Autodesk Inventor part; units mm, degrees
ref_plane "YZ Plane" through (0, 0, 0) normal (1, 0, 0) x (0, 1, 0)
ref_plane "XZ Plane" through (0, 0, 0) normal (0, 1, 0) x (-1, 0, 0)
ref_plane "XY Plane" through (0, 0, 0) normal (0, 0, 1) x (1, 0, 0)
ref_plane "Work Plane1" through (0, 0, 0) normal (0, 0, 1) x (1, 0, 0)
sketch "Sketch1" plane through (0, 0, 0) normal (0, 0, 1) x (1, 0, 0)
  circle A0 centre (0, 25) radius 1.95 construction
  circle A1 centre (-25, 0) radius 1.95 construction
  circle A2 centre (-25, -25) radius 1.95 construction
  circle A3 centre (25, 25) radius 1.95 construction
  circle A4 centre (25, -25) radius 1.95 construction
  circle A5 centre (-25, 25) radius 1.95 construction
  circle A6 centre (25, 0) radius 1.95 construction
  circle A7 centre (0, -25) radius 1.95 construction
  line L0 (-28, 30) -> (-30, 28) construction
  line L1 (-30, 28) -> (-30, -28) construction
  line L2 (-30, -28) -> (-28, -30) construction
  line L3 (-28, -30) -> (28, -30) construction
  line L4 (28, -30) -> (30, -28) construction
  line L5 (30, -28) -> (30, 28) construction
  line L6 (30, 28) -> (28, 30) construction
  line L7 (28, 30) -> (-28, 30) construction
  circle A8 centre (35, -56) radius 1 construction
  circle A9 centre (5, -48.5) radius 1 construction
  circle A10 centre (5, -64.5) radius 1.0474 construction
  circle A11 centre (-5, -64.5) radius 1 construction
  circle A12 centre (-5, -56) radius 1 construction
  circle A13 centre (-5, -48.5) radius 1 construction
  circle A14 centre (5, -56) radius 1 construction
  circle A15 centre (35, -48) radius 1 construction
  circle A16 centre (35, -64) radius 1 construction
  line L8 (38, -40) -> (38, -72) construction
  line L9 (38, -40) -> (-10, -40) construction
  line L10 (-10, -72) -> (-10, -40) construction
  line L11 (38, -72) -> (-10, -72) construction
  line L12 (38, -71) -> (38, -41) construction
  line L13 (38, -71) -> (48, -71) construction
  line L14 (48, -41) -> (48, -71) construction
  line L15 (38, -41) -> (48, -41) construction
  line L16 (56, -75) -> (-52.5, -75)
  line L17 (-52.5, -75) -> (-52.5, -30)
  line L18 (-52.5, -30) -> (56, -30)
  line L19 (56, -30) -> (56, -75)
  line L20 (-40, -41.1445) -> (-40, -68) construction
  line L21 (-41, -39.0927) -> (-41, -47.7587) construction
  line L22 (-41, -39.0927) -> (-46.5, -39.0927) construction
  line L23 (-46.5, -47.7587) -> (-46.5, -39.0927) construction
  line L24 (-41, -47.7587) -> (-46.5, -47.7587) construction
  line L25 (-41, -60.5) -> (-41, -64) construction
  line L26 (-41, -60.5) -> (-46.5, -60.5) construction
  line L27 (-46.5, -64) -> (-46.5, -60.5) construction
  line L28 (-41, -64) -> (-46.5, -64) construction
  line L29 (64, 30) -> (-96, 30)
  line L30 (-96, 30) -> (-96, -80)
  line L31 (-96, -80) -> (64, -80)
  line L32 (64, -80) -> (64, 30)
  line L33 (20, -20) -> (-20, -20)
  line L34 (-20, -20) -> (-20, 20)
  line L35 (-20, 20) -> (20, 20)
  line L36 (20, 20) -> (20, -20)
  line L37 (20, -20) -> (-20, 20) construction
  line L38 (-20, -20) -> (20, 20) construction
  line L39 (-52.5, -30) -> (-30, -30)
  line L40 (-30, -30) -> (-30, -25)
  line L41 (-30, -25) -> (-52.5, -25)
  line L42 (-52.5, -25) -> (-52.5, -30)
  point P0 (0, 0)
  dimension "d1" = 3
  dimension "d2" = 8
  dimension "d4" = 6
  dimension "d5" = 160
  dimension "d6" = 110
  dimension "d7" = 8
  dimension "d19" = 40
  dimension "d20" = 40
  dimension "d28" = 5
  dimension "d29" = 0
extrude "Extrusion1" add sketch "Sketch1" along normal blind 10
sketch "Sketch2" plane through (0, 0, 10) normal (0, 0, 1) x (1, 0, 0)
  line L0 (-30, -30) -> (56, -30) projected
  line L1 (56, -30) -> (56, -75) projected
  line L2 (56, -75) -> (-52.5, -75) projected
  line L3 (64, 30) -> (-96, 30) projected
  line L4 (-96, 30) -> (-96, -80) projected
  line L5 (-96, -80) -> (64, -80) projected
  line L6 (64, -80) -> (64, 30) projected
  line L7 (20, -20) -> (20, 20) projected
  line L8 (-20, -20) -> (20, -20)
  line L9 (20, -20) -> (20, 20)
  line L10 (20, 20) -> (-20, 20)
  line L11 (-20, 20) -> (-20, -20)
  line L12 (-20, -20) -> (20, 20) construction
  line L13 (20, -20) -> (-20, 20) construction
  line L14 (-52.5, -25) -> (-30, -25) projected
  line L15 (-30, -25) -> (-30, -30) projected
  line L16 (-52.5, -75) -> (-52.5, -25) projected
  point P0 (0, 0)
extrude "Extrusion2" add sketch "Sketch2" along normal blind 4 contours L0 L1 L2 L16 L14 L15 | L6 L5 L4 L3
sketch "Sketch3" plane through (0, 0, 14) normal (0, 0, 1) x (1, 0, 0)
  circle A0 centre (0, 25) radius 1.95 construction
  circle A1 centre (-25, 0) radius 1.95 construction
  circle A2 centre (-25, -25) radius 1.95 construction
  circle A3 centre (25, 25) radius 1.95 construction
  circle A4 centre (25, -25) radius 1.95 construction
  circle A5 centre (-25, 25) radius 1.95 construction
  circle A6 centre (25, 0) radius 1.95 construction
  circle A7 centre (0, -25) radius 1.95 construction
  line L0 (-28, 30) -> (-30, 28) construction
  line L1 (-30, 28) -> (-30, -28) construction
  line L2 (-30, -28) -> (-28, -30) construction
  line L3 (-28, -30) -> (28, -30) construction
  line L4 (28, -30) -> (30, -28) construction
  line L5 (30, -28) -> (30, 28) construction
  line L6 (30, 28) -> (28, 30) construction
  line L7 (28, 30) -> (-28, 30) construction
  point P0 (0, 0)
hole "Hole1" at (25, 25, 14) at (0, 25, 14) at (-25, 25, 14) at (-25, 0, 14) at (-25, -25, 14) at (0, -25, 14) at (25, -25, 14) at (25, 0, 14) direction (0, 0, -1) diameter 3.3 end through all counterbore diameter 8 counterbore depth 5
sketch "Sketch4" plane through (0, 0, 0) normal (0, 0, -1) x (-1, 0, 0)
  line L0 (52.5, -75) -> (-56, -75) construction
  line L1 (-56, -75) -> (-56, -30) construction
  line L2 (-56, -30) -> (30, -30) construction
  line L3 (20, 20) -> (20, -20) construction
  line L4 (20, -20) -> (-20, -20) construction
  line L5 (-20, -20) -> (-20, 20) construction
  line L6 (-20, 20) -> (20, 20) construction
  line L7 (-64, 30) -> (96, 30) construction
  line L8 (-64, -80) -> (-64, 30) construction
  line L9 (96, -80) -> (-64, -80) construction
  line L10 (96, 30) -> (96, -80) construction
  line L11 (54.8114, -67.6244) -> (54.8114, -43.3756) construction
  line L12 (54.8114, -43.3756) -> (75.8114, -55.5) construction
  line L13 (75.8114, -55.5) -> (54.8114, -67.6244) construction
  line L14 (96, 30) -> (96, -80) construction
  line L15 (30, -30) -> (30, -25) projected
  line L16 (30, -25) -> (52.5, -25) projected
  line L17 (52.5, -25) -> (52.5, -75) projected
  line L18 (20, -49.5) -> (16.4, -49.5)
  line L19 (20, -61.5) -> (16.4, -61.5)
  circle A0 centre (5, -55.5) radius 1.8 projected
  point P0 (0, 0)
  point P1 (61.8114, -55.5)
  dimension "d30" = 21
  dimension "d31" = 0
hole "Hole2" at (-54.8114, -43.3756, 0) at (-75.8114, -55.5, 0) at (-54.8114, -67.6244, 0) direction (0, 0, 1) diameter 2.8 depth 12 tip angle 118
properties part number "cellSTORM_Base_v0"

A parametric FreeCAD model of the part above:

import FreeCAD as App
import Part
import Sketcher
Q = App.Units.Quantity


def add_polygon(sketch, points):
    """Adds a closed chain of lines whose ends are joined by coincident constraints."""
    first, n = sketch.GeometryCount, len(points)
    for a, b in zip(points, points[1:] + points[:1]):
        sketch.addGeometry(Part.LineSegment(App.Vector(*a, 0), App.Vector(*b, 0)), False)
    for i in range(n):
        sketch.addConstraint(Sketcher.Constraint("Coincident", first + i, 2, first + (i + 1) % n, 1))

doc = App.newDocument("Part")
body = doc.addObject("PartDesign::Body", "Body")

# Sketch on XY plane
sketch1 = doc.addObject("Sketcher::SketchObject", "Sketch")
body.addObject(sketch1)
sketch1.AttachmentSupport = (doc.XY_Plane, [""])
sketch1.MapMode = "FlatFace"
add_polygon(sketch1, [(64, -80), (64, 30), (-96, 30), (-96, -80)])  # lines 0-3
add_polygon(sketch1, [(56, -30), (56, -75), (-52, -75), (-52, -25), (-30, -25), (-30, -30)])  # lines 4-9
add_polygon(sketch1, [(20, 20), (20, -20), (-20, -20), (-20, 20)])  # lines 10-13
sketch1.addConstraint([
    Sketcher.Constraint("Vertical", 0),
    Sketcher.Constraint("Horizontal", 1),
    Sketcher.Constraint("Vertical", 2),
    Sketcher.Constraint("Horizontal", 3),
    Sketcher.Constraint("Vertical", 4),
    Sketcher.Constraint("Horizontal", 5),
    Sketcher.Constraint("Vertical", 6),
    Sketcher.Constraint("Horizontal", 7),
    Sketcher.Constraint("Vertical", 8),
    Sketcher.Constraint("Horizontal", 9),
    Sketcher.Constraint("Vertical", 10),
    Sketcher.Constraint("Horizontal", 11),
    Sketcher.Constraint("Vertical", 12),
    Sketcher.Constraint("Horizontal", 13),
    Sketcher.Constraint("Symmetric", 10, 2, 12, 2, -1, 1),
    Sketcher.Constraint("Equal", 13, 10),
    Sketcher.Constraint("DistanceX", 1, 2, 1, 1, Q("160 mm")),
    Sketcher.Constraint("DistanceX", 11, 2, 11, 1, Q("40 mm")),
    Sketcher.Constraint("DistanceY", 0, 1, 0, 2, Q("110 mm")),
    Sketcher.Constraint("DistanceY", 8, 2, 8, 1, Q("5 mm")),
    Sketcher.Constraint("DistanceX", 4, 2, 3, 2, Q("8 mm")),
    Sketcher.Constraint("DistanceY", 3, 2, 4, 2, Q("5 mm")),
    Sketcher.Constraint("DistanceY", 7, 2, 10, 2, Q("5 mm")),
    Sketcher.Constraint("DistanceX", 9, 1, 9, 2, Q("86 mm")),
    Sketcher.Constraint("DistanceY", 4, 2, 4, 1, Q("45 mm")),
    Sketcher.Constraint("DistanceX", 5, 2, 5, 1, Q("108.5 mm")),
    Sketcher.Constraint("DistanceX", -1, 1, 0, 2, Q("64 mm")),
])
pad1 = doc.addObject("PartDesign::Pad", "Pad")
body.addObject(pad1)
pad1.Profile = sketch1
pad1.Length = 10

# Sketch on XY plane
sketch2 = doc.addObject("Sketcher::SketchObject", "Sketch001")
body.addObject(sketch2)
sketch2.AttachmentSupport = (doc.XY_Plane, [""])
sketch2.MapMode = "FlatFace"
sketch2.AttachmentOffset = App.Placement(App.Vector(0, 0, 10), App.Rotation())
add_polygon(sketch2, [(64, -80), (64, 30), (-96, 30), (-96, -80)])  # lines 0-3
add_polygon(sketch2, [(-20, -20), (-20, 20), (20, 20), (20, -20)])  # lines 4-7
sketch2.addConstraint([
    Sketcher.Constraint("Vertical", 0),
    Sketcher.Constraint("Horizontal", 1),
    Sketcher.Constraint("Vertical", 2),
    Sketcher.Constraint("Horizontal", 3),
    Sketcher.Constraint("Vertical", 4),
    Sketcher.Constraint("Horizontal", 5),
    Sketcher.Constraint("Vertical", 6),
    Sketcher.Constraint("Horizontal", 7),
    Sketcher.Constraint("Symmetric", 4, 2, 6, 2, -1, 1),
    Sketcher.Constraint("Equal", 7, 4),
    Sketcher.Constraint("DistanceX", 1, 2, 1, 1, Q("160 mm")),
    Sketcher.Constraint("DistanceX", 5, 1, 5, 2, Q("40 mm")),
    Sketcher.Constraint("DistanceY", 0, 1, 0, 2, Q("110 mm")),
    Sketcher.Constraint("DistanceX", -1, 1, 0, 2, Q("64 mm")),
    Sketcher.Constraint("DistanceY", -1, 1, 0, 2, Q("30 mm")),
])
pad2 = doc.addObject("PartDesign::Pad", "Pad001")
body.addObject(pad2)
pad2.Profile = sketch2
pad2.Length = 4

# Sketch on XY plane
sketch3 = doc.addObject("Sketcher::SketchObject", "Sketch002")
body.addObject(sketch3)
sketch3.AttachmentSupport = (doc.XY_Plane, [""])
sketch3.MapMode = "FlatFace"
sketch3.AttachmentOffset = App.Placement(App.Vector(0, 0, 14), App.Rotation())
sketch3.addGeometry([
    Part.Circle(App.Vector(25, 25, 0), App.Vector(0, 0, 1), 1.6),  # 0
    Part.Circle(App.Vector(0, 25, 0), App.Vector(0, 0, 1), 1.6),  # 1
    Part.Circle(App.Vector(-25, 25, 0), App.Vector(0, 0, 1), 1.6),  # 2
    Part.Circle(App.Vector(-25, 0, 0), App.Vector(0, 0, 1), 1.6),  # 3
    Part.Circle(App.Vector(-25, -25, 0), App.Vector(0, 0, 1), 1.6),  # 4
    Part.Circle(App.Vector(0, -25, 0), App.Vector(0, 0, 1), 1.6),  # 5
    Part.Circle(App.Vector(25, -25, 0), App.Vector(0, 0, 1), 1.6),  # 6
    Part.Circle(App.Vector(25, 0, 0), App.Vector(0, 0, 1), 1.6),  # 7
], False)
sketch3.addConstraint([
    Sketcher.Constraint("Equal", 0, 1),
    Sketcher.Constraint("Equal", 1, 2),
    Sketcher.Constraint("Equal", 2, 3),
    Sketcher.Constraint("Equal", 3, 4),
    Sketcher.Constraint("Equal", 4, 5),
    Sketcher.Constraint("Equal", 5, 6),
    Sketcher.Constraint("Equal", 6, 7),
    Sketcher.Constraint("Symmetric", 0, 3, 4, 3, -1, 1),
    Sketcher.Constraint("Symmetric", 1, 3, 5, 3, -1, 1),
    Sketcher.Constraint("Symmetric", 2, 3, 6, 3, -1, 1),
    Sketcher.Constraint("Symmetric", 3, 3, 7, 3, -1, 1),
    Sketcher.Constraint("Symmetric", 0, 3, 2, 3, -2),
    Sketcher.Constraint("PointOnObject", 1, 3, -2),
    Sketcher.Constraint("PointOnObject", 3, 3, -1),
    Sketcher.Constraint("Horizontal", 0, 3, 1, 3),
    Sketcher.Constraint("Vertical", 2, 3, 3, 3),
    Sketcher.Constraint("Diameter", 0, Q("3.3 mm")),
    Sketcher.Constraint("DistanceX", -1, 1, 0, 3, Q("25 mm")),
    Sketcher.Constraint("DistanceY", -1, 1, 0, 3, Q("25 mm")),
])
doc.recompute()
hole = doc.addObject("PartDesign::Hole", "Hole")
body.addObject(hole)
hole.Profile = sketch3
hole.ThreadType = "None"
hole.Diameter = 3.3
hole.DepthType = "ThroughAll"
hole.HoleCutType = "Counterbore"
hole.HoleCutDiameter = 8
hole.HoleCutDepth = 5

# Sketch on XY plane
sketch4 = doc.addObject("Sketcher::SketchObject", "Sketch003")
body.addObject(sketch4)
sketch4.AttachmentSupport = (doc.XY_Plane, [""])
sketch4.MapMode = "FlatFace"
sketch4.addGeometry([
    Part.Circle(App.Vector(-54.8, -43.4, 0), App.Vector(0, 0, 1), 1.4),
    Part.Circle(App.Vector(-75.8, -55.5, 0), App.Vector(0, 0, 1), 1.4),
    Part.Circle(App.Vector(-54.8, -67.6, 0), App.Vector(0, 0, 1), 1.4),
], False)
sketch4.addConstraint([
    Sketcher.Constraint("Equal", 0, 1),
    Sketcher.Constraint("Equal", 1, 2),
    Sketcher.Constraint("Vertical", 0, 3, 2, 3),
    Sketcher.Constraint("Diameter", 0, Q("2.8 mm")),
    Sketcher.Constraint("DistanceX", 1, 3, 0, 3, Q("21 mm")),
    Sketcher.Constraint("DistanceY", 1, 3, -1, 1, Q("55.5 mm")),
    Sketcher.Constraint("DistanceX", 0, 3, -1, 1, Q("54.8114 mm")),
    Sketcher.Constraint("DistanceY", 0, 3, -1, 1, Q("43.3756 mm")),
    Sketcher.Constraint("DistanceY", 2, 3, -1, 1, Q("67.6244 mm")),
])
doc.recompute()
hole2 = doc.addObject("PartDesign::Hole", "Hole001")
body.addObject(hole2)
hole2.Profile = sketch4
hole2.ThreadType = "None"
hole2.Diameter = 2.8
hole2.DepthType = "Dimension"
hole2.Depth = 12
hole2.DrillPoint = "Angled"
hole2.DrillPointAngle = 118
hole2.Reversed = True

doc.recompute()
